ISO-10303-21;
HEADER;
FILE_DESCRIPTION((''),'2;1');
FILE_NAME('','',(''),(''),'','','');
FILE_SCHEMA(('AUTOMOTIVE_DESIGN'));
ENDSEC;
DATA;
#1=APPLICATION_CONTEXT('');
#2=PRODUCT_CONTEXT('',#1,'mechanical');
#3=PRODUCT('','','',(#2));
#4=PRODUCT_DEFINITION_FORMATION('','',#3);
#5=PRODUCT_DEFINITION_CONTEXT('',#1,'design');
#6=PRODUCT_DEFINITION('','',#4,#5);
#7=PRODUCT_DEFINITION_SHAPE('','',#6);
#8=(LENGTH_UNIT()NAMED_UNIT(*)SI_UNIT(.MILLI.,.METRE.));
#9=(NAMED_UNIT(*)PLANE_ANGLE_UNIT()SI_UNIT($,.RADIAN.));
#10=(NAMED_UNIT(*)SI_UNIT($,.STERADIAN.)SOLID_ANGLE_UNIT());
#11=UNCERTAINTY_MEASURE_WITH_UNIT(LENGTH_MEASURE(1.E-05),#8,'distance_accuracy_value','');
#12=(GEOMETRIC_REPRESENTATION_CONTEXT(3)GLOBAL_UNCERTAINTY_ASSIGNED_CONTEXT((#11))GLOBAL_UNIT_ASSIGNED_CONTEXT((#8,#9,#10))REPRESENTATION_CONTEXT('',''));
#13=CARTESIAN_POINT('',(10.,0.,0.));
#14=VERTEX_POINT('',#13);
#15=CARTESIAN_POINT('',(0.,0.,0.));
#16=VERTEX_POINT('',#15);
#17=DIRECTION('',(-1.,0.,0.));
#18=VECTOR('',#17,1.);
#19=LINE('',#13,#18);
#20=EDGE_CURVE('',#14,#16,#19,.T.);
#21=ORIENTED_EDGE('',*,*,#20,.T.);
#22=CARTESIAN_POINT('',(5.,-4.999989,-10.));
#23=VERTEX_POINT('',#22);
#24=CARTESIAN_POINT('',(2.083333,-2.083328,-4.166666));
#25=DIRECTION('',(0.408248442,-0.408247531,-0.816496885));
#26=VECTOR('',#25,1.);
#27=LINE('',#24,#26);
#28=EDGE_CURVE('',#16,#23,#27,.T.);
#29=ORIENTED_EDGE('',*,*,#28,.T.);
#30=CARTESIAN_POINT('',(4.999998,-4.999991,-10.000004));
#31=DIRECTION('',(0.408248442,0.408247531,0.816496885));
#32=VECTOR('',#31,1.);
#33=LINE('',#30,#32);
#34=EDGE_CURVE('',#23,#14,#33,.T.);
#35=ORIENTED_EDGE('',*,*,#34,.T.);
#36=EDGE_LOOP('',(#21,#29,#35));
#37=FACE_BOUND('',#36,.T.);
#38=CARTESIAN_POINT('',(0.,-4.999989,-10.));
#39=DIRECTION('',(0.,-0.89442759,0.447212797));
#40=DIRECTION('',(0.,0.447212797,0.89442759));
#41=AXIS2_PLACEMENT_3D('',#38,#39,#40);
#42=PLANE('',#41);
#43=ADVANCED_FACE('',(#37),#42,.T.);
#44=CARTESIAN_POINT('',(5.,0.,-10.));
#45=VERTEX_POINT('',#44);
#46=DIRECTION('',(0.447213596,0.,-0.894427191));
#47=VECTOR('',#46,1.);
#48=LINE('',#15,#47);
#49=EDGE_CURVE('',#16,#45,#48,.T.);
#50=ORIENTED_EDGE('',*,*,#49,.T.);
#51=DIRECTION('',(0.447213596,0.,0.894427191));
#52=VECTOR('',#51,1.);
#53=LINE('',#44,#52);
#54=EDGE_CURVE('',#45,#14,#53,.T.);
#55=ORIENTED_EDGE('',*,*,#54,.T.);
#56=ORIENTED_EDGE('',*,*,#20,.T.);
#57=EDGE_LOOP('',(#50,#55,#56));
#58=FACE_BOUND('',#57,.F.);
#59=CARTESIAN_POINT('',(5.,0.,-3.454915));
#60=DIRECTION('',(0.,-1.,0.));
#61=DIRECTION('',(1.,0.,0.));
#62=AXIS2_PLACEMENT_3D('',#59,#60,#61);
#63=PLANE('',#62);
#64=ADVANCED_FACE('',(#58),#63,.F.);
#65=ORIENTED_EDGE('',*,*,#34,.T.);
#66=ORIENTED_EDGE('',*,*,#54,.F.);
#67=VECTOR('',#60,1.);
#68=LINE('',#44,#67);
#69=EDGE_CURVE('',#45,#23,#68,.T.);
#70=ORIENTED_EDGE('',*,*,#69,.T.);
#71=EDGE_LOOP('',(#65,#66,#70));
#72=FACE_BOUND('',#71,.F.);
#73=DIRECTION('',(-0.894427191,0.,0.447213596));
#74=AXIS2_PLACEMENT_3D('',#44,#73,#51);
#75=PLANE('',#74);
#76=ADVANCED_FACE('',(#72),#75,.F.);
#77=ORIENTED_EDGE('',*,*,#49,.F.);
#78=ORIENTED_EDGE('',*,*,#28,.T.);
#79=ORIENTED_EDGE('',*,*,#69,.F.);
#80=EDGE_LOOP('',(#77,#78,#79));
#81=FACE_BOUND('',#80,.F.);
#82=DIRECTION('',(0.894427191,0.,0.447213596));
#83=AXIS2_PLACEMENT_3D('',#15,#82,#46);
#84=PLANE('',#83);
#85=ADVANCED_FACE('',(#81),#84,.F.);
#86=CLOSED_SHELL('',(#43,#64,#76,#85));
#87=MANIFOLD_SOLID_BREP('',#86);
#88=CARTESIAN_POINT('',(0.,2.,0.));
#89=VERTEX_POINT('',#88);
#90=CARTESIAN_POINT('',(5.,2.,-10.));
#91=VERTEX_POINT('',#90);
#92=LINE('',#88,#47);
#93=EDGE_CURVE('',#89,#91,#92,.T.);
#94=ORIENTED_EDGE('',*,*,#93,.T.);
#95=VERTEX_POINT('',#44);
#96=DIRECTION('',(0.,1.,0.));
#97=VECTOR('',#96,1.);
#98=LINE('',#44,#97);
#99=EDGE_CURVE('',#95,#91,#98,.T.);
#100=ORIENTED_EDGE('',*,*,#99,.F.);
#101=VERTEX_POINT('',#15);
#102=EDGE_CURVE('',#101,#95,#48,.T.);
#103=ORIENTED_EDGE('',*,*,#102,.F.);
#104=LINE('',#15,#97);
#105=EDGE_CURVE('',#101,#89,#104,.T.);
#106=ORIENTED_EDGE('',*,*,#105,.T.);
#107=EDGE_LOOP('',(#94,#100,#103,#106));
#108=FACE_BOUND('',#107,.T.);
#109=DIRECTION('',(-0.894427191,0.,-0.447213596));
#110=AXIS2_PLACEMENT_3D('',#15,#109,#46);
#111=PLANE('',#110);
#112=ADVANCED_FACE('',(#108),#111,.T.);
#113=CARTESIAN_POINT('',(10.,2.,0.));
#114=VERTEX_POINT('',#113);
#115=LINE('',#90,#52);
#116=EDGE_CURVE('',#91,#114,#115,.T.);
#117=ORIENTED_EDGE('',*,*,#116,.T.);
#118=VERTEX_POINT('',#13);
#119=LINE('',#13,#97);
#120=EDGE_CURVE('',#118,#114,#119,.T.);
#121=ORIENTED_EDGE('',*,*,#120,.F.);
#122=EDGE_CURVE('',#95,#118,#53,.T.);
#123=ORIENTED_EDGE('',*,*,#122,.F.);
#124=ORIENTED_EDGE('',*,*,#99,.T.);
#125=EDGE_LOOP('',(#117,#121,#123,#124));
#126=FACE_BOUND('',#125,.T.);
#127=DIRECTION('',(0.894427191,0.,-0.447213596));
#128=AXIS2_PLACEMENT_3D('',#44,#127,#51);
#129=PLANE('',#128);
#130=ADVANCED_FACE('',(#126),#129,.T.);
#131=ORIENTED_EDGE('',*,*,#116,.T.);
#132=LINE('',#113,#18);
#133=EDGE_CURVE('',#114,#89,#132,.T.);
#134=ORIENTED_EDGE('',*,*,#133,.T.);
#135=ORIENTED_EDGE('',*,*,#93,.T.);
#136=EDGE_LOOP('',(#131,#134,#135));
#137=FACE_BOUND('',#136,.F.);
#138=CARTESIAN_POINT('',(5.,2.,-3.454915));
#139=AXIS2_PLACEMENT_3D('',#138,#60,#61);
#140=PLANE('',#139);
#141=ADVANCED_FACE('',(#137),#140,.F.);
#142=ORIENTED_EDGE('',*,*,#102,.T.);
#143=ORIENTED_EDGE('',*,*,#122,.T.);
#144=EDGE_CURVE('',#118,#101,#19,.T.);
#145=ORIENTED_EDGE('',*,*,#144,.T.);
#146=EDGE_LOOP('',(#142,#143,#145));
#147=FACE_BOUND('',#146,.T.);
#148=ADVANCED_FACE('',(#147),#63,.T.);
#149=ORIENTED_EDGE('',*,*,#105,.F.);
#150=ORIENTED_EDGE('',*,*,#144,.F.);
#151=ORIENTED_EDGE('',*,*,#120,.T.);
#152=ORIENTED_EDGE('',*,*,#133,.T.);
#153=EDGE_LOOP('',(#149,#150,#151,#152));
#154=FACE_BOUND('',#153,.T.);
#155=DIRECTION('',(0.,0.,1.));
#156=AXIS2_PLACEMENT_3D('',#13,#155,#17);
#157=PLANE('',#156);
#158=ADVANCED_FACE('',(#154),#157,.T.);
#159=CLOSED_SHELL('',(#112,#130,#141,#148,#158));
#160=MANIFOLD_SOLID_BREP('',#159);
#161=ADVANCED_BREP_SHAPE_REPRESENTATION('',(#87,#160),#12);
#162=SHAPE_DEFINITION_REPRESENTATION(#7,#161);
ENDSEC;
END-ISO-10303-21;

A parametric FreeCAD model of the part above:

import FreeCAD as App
import Part
import Sketcher
from FreeCAD import Vector
Q = App.Units.Quantity


def add_polygon(sketch, points):
    """Adds a closed chain of lines whose ends are joined by coincident constraints."""
    first, n = sketch.GeometryCount, len(points)
    for a, b in zip(points, points[1:] + points[:1]):
        sketch.addGeometry(Part.LineSegment(App.Vector(*a, 0), App.Vector(*b, 0)), False)
    for i in range(n):
        sketch.addConstraint(Sketcher.Constraint("Coincident", first + i, 2, first + (i + 1) % n, 1))

doc = App.newDocument("Part")
body = doc.addObject("PartDesign::Body", "Body")

# Sketch on XZ plane
sketch1 = doc.addObject("Sketcher::SketchObject", "Sketch")
body.addObject(sketch1)
sketch1.AttachmentSupport = (doc.XZ_Plane, [""])
sketch1.MapMode = "FlatFace"
add_polygon(sketch1, [(0, 0), (5, -10), (10, 0)])  # lines 0-2
sketch1.addConstraint([
    Sketcher.Constraint("Horizontal", 2),
    Sketcher.Constraint("Coincident", 2, 2, -1, 1),
    Sketcher.Constraint("Equal", 0, 1),
    Sketcher.Constraint("DistanceX", 2, 2, 2, 1, Q("10 mm")),
    Sketcher.Constraint("DistanceY", 0, 2, -1, 1, Q("10 mm")),
])
pad1 = doc.addObject("PartDesign::Pad", "Pad")
body.addObject(pad1)
pad1.Profile = sketch1
pad1.Length = 2
pad1.Reversed = True
body2 = doc.addObject("PartDesign::Body", "Body001")

# Sketch on XZ plane
sketch2 = doc.addObject("Sketcher::SketchObject", "Sketch001")
body2.addObject(sketch2)
sketch2.AttachmentSupport = (doc.getObject("XZ_Plane001"), [""])
sketch2.MapMode = "FlatFace"
add_polygon(sketch2, [(0, 0), (5, -10), (10, 0)])  # lines 0-2
sketch2.addConstraint([
    Sketcher.Constraint("Horizontal", 2),
    Sketcher.Constraint("Coincident", 2, 2, -1, 1),
    Sketcher.Constraint("Equal", 0, 1),
    Sketcher.Constraint("DistanceX", 2, 2, 2, 1, Q("10 mm")),
    Sketcher.Constraint("DistanceY", 0, 2, -1, 1, Q("10 mm")),
])
pad2 = doc.addObject("PartDesign::Pad", "Pad001")
body2.addObject(pad2)
pad2.Profile = sketch2
pad2.Length = 10

# Sketch on YZ plane
sketch3 = doc.addObject("Sketcher::SketchObject", "Sketch002")
body2.addObject(sketch3)
sketch3.AttachmentSupport = (doc.getObject("YZ_Plane001"), [""])
sketch3.MapMode = "FlatFace"
add_polygon(sketch3, [(-5, -10), (0, 0), (-20, 0), (-20, -10)])  # lines 0-3
sketch3.addConstraint([
    Sketcher.Constraint("Horizontal", 1),
    Sketcher.Constraint("Vertical", 2),
    Sketcher.Constraint("Horizontal", 3),
    Sketcher.Constraint("Coincident", 0, 2, -1, 1),
    Sketcher.Constraint("DistanceY", 2, 2, 2, 1, Q("10 mm")),
    Sketcher.Constraint("DistanceX", 1, 2, 1, 1, Q("20.076105 mm")),
    Sketcher.Constraint("DistanceX", 3, 1, 3, 2, Q("15.076117 mm")),
])
pocket1 = doc.addObject("PartDesign::Pocket", "Pocket")
body2.addObject(pocket1)
pocket1.Profile = sketch3
pocket1.Type = "ThroughAll"
pocket1.Reversed = True

doc.recompute()
